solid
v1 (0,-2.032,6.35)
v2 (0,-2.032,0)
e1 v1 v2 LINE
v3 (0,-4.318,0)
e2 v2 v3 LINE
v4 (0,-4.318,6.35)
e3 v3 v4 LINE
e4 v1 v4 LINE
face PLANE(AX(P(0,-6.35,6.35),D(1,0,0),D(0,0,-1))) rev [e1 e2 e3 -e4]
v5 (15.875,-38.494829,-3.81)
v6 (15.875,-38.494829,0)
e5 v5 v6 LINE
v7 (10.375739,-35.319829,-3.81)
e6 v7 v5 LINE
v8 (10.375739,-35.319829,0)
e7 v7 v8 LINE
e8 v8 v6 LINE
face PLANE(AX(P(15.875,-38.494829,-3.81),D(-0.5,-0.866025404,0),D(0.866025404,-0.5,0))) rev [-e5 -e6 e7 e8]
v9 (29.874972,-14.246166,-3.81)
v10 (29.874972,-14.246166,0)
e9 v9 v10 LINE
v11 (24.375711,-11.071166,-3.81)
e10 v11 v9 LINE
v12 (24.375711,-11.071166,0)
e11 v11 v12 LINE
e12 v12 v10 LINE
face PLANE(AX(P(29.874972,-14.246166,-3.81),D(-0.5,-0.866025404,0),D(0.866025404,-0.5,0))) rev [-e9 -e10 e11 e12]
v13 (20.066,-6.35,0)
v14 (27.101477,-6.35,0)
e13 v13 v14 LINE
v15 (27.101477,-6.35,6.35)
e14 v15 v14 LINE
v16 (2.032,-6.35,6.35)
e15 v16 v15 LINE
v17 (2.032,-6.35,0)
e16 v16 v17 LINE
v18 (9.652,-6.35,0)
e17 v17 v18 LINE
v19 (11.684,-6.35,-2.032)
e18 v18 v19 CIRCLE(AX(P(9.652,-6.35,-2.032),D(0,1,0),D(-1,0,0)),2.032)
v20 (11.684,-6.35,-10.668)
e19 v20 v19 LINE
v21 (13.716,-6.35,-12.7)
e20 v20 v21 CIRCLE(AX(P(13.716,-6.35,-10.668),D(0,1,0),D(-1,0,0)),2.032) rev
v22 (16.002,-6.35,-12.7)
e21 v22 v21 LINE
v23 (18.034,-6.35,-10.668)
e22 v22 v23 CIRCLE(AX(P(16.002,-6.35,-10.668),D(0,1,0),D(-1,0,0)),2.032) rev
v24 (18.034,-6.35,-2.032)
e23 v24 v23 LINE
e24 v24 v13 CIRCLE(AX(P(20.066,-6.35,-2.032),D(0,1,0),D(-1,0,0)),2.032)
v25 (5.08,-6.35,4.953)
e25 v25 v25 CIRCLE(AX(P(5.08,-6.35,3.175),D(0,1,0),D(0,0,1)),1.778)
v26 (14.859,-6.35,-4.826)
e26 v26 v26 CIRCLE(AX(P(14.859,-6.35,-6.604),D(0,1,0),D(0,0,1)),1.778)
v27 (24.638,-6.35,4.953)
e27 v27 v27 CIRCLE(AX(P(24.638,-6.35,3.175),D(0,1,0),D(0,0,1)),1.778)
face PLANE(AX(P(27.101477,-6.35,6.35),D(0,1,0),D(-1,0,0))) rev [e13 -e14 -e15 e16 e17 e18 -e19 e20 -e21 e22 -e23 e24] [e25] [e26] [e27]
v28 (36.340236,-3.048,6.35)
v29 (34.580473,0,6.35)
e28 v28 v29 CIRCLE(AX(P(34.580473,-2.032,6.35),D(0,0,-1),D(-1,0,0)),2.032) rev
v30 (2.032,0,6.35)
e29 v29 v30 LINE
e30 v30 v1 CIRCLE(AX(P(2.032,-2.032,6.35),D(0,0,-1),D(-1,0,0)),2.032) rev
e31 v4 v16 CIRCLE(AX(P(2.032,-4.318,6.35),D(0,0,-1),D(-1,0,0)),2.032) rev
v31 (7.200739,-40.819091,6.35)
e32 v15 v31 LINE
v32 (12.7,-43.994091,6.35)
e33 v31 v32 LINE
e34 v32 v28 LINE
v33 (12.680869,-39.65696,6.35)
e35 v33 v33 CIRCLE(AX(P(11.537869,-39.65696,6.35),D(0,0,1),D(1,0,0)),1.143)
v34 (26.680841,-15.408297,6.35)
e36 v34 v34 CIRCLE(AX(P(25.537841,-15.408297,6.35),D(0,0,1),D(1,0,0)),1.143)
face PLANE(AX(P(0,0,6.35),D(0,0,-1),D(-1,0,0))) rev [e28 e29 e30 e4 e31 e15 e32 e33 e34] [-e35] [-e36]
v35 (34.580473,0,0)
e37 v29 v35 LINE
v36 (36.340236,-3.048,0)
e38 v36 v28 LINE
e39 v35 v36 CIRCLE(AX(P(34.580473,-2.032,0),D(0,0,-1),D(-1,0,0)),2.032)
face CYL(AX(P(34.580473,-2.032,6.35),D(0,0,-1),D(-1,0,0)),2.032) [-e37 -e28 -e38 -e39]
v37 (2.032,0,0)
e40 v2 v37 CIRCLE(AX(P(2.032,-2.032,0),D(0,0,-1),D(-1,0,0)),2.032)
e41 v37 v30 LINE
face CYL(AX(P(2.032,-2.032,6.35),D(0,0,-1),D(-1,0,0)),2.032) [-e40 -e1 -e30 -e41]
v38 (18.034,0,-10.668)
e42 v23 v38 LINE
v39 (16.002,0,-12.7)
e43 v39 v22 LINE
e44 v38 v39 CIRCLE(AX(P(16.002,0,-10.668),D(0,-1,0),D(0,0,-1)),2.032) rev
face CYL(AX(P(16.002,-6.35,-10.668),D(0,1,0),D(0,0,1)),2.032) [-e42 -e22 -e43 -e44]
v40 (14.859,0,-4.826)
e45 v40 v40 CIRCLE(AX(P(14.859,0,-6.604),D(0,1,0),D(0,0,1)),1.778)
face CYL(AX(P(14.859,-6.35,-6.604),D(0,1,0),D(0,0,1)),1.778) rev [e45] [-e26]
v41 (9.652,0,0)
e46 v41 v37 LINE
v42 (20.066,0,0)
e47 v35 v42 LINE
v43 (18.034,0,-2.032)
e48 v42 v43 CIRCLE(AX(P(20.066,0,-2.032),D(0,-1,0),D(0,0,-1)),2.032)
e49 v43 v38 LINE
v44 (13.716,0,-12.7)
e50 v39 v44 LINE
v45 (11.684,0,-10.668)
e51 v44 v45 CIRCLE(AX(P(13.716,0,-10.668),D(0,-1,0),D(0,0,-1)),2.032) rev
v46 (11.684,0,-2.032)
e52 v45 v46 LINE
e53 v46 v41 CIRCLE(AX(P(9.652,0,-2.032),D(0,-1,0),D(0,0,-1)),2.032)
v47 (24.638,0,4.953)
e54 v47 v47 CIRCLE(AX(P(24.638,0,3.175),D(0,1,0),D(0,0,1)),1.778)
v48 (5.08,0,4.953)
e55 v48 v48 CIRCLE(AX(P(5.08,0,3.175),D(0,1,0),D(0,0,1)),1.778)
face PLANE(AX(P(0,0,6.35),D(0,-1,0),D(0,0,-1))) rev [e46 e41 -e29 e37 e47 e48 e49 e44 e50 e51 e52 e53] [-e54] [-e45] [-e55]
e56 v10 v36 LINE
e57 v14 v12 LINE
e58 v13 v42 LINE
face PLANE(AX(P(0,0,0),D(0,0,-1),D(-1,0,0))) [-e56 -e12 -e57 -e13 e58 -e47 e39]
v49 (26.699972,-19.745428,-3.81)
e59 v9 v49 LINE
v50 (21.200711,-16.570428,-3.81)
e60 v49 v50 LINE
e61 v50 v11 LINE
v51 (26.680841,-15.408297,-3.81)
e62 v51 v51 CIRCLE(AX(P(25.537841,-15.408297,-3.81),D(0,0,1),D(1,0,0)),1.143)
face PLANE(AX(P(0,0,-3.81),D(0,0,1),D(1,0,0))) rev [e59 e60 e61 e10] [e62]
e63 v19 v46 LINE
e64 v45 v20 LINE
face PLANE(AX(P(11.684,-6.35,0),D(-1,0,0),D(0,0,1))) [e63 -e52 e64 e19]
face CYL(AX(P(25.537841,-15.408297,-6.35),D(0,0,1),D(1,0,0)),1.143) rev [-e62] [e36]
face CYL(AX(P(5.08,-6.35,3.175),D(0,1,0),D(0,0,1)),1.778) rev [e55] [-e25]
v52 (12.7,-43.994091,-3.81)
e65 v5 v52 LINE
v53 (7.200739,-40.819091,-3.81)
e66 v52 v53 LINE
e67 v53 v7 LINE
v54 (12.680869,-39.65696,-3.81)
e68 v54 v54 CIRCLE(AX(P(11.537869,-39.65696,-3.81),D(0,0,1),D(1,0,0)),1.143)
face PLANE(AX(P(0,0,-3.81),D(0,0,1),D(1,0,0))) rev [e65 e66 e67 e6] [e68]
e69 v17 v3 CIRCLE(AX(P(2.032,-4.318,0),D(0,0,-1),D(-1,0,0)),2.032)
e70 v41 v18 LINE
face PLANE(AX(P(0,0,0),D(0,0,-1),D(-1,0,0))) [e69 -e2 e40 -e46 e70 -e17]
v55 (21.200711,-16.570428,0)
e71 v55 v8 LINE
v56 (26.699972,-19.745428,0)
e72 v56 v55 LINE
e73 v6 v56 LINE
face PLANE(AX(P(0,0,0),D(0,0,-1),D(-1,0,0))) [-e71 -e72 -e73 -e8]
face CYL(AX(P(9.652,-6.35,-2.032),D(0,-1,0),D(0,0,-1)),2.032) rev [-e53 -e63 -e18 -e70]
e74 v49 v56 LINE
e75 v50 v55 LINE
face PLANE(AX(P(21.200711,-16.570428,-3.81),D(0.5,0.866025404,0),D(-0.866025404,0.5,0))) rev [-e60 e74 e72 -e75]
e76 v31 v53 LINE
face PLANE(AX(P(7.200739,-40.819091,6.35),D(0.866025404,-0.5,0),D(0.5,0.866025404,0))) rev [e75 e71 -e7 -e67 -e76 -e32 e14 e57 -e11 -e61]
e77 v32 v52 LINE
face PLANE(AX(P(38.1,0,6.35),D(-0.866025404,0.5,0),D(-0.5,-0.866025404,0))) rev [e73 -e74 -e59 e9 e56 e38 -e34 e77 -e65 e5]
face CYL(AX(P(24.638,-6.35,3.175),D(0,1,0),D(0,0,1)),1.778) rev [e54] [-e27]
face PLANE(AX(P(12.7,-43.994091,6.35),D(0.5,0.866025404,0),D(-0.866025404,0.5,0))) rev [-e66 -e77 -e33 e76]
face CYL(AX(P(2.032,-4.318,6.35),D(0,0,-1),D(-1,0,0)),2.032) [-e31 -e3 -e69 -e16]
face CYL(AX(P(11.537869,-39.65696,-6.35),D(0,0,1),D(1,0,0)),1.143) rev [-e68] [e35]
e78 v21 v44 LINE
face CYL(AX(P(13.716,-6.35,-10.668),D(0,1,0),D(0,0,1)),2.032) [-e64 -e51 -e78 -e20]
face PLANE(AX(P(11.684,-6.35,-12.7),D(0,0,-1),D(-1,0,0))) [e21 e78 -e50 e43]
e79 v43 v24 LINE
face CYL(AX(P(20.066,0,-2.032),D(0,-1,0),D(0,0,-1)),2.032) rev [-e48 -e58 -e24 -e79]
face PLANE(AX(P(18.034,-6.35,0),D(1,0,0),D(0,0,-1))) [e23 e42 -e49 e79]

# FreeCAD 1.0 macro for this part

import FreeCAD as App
import Part
import Sketcher

V = App.Vector
Q = App.Units.Quantity


def edges_at(feature, points):
    """Names of the edges that pass closest to the given points."""
    edges = feature.Shape.Edges
    near = lambda p: min(range(len(edges)), key=lambda i: edges[i].distToShape(Part.Vertex(*p))[0])
    return sorted({f"Edge{near(p) + 1}" for p in points})

doc = App.newDocument("Part")
body = doc.addObject("PartDesign::Body", "Body")

# Sketch on XY plane
sketch1 = body.newObject("Sketcher::SketchObject", "Sketch")
sketch1.AttachmentSupport = (doc.getObject("XY_Plane"), [""])
sketch1.MapMode = "FlatFace"
sketch1.addGeometry(Part.LineSegment(V(38, 0, 0), V(0, 0, 0)), False)
sketch1.addGeometry(Part.LineSegment(V(0, 0, 0), V(0, -6, 0)), False)
sketch1.addGeometry(Part.LineSegment(V(0, -6, 0), V(27, -6, 0)), False)
sketch1.addGeometry(Part.LineSegment(V(27, -6, 0), V(7, -41, 0)), False)
sketch1.addGeometry(Part.LineSegment(V(7, -41, 0), V(13, -44, 0)), False)
sketch1.addGeometry(Part.LineSegment(V(13, -44, 0), V(38, 0, 0)), False)
sketch1.addConstraint(Sketcher.Constraint("Coincident", 0, 2, 1, 1))
sketch1.addConstraint(Sketcher.Constraint("Coincident", 1, 2, 2, 1))
sketch1.addConstraint(Sketcher.Constraint("Coincident", 2, 2, 3, 1))
sketch1.addConstraint(Sketcher.Constraint("Coincident", 3, 2, 4, 1))
sketch1.addConstraint(Sketcher.Constraint("Coincident", 4, 2, 5, 1))
sketch1.addConstraint(Sketcher.Constraint("Coincident", 5, 2, 0, 1))
sketch1.addConstraint(Sketcher.Constraint("Horizontal", 0))
sketch1.addConstraint(Sketcher.Constraint("Vertical", 1))
sketch1.addConstraint(Sketcher.Constraint("Horizontal", 2))
sketch1.addConstraint(Sketcher.Constraint("Coincident", 0, 2, -1, 1))
sketch1.addConstraint(Sketcher.Constraint("Perpendicular", 3, 4))
sketch1.addConstraint(Sketcher.Constraint("Perpendicular", 4, 5))
sketch1.addConstraint(Sketcher.Constraint("Distance", 5, Q("2 in")))
sketch1.addConstraint(Sketcher.Constraint("DistanceX", 0, 2, 0, 1, Q("1.5 in")))
sketch1.addConstraint(Sketcher.Constraint("Angle", 3, Q("-120 deg")))
sketch1.addConstraint(Sketcher.Constraint("DistanceY", 1, 2, 1, 1, Q("0.25 in")))
sketch1.addConstraint(Sketcher.Constraint("Distance", 4, Q("0.25 in")))
pad1 = body.newObject("PartDesign::Pad", "Pad")
pad1.Profile = sketch1
pad1.Length = Q("0.25 in")

# Sketch on XZ plane
sketch2 = body.newObject("Sketcher::SketchObject", "Sketch001")
sketch2.AttachmentSupport = (doc.getObject("XZ_Plane"), [""])
sketch2.MapMode = "FlatFace"
sketch2.addGeometry(Part.Circle(V(5.1, 3.2, 0), V(0, 0, 1), 1.8), False)
sketch2.addGeometry(Part.Circle(V(24.6, 3.2, 0), V(0, 0, 1), 1.8), False)
sketch2.addConstraint(Sketcher.Constraint("Equal", 0, 1))
sketch2.addConstraint(Sketcher.Constraint("Horizontal", 0, 3, 1, 3))
sketch2.addConstraint(Sketcher.Constraint("Diameter", 0, Q("0.14 in")))
sketch2.addConstraint(Sketcher.Constraint("DistanceX", -1, 1, 0, 3, Q("0.2 in")))
sketch2.addConstraint(Sketcher.Constraint("DistanceX", -1, 1, 1, 3, Q("0.97 in")))
sketch2.addConstraint(Sketcher.Constraint("DistanceY", -1, 1, 0, 3, Q("0.125 in")))
pocket1 = body.newObject("PartDesign::Pocket", "Pocket")
pocket1.Profile = sketch2
pocket1.Length = Q("0.25 in")
pocket1.Reversed = True

# Sketch on XZ plane
sketch3 = body.newObject("Sketcher::SketchObject", "Sketch002")
sketch3.AttachmentSupport = (doc.getObject("XZ_Plane"), [""])
sketch3.MapMode = "FlatFace"
sketch3.addGeometry(Part.LineSegment(V(12, -13, 0), V(12, 0, 0)), False)
sketch3.addGeometry(Part.LineSegment(V(12, 0, 0), V(18, 0, 0)), False)
sketch3.addGeometry(Part.LineSegment(V(18, 0, 0), V(18, -13, 0)), False)
sketch3.addGeometry(Part.LineSegment(V(18, -13, 0), V(12, -13, 0)), False)
sketch3.addConstraint(Sketcher.Constraint("Coincident", 0, 2, 1, 1))
sketch3.addConstraint(Sketcher.Constraint("Coincident", 1, 2, 2, 1))
sketch3.addConstraint(Sketcher.Constraint("Coincident", 2, 2, 3, 1))
sketch3.addConstraint(Sketcher.Constraint("Coincident", 3, 2, 0, 1))
sketch3.addConstraint(Sketcher.Constraint("Vertical", 0))
sketch3.addConstraint(Sketcher.Constraint("Horizontal", 1))
sketch3.addConstraint(Sketcher.Constraint("Vertical", 2))
sketch3.addConstraint(Sketcher.Constraint("Horizontal", 3))
sketch3.addConstraint(Sketcher.Constraint("PointOnObject", 0, 2, -1))
sketch3.addConstraint(Sketcher.Constraint("DistanceY", 0, 1, 0, 2, Q("0.5 in")))
sketch3.addConstraint(Sketcher.Constraint("DistanceX", 1, 1, 1, 2, Q("0.25 in")))
sketch3.addConstraint(Sketcher.Constraint("DistanceX", -1, 1, 0, 2, Q("0.46 in")))
pad2 = body.newObject("PartDesign::Pad", "Pad001")
pad2.Profile = sketch3
pad2.Length = Q("0.25 in")

# Sketch on XZ plane
sketch4 = body.newObject("Sketcher::SketchObject", "Sketch003")
sketch4.AttachmentSupport = (doc.getObject("XZ_Plane"), [""])
sketch4.MapMode = "FlatFace"
sketch4.addGeometry(Part.Circle(V(14.9, -6.6, 0), V(0, 0, 1), 1.8), False)
sketch4.addConstraint(Sketcher.Constraint("Diameter", 0, Q("0.14 in")))
sketch4.addConstraint(Sketcher.Constraint("DistanceY", 0, 3, -1, 1, Q("0.26 in")))
sketch4.addConstraint(Sketcher.Constraint("DistanceX", -1, 1, 0, 3, Q("0.585 in")))
pocket2 = body.newObject("PartDesign::Pocket", "Pocket001")
pocket2.Profile = sketch4
pocket2.Length = Q("0.25 in")
pocket2.Reversed = True

# Sketch on XY plane
sketch5 = body.newObject("Sketcher::SketchObject", "Sketch004")
sketch5.AttachmentSupport = (doc.getObject("XY_Plane"), [""])
sketch5.MapMode = "FlatFace"
sketch5.AttachmentOffset = App.Placement(V(0, 0, 0.25 * 25.4), App.Rotation())
sketch5.addGeometry(Part.Circle(V(11.5, -39.7, 0), V(0, 0, 1), 1.1), False)
sketch5.addGeometry(Part.Circle(V(25.5, -15.4, 0), V(0, 0, 1), 1.1), False)
sketch5.addConstraint(Sketcher.Constraint("Equal", 0, 1))
sketch5.addConstraint(Sketcher.Constraint("Diameter", 0, Q("0.09 in")))
sketch5.addConstraint(Sketcher.Constraint("DistanceX", -1, 1, 0, 3, Q("11.537869 mm")))
sketch5.addConstraint(Sketcher.Constraint("DistanceY", 0, 3, -1, 1, Q("39.65696 mm")))
sketch5.addConstraint(Sketcher.Constraint("DistanceX", -1, 1, 1, 3, Q("25.537841 mm")))
sketch5.addConstraint(Sketcher.Constraint("DistanceY", 1, 3, -1, 1, Q("15.408297 mm")))
pocket3 = body.newObject("PartDesign::Pocket", "Pocket002")
pocket3.Profile = sketch5
pocket3.Length = Q("0.5 in")

# Sketch on XY plane
sketch6 = body.newObject("Sketcher::SketchObject", "Sketch005")
sketch6.AttachmentSupport = (doc.getObject("XY_Plane"), [""])
sketch6.MapMode = "FlatFace"
sketch6.addGeometry(Part.LineSegment(V(24, -11, 0), V(30, -14, 0)), False)
sketch6.addGeometry(Part.LineSegment(V(30, -14, 0), V(27, -20, 0)), False)
sketch6.addGeometry(Part.LineSegment(V(27, -20, 0), V(21, -17, 0)), False)
sketch6.addGeometry(Part.LineSegment(V(21, -17, 0), V(24, -11, 0)), False)
sketch6.addGeometry(Part.LineSegment(V(10, -35, 0), V(16, -38, 0)), False)
sketch6.addGeometry(Part.LineSegment(V(16, -38, 0), V(13, -44, 0)), False)
sketch6.addGeometry(Part.LineSegment(V(13, -44, 0), V(7, -41, 0)), False)
sketch6.addGeometry(Part.LineSegment(V(7, -41, 0), V(10, -35, 0)), False)
sketch6.addConstraint(Sketcher.Constraint("Coincident", 0, 2, 1, 1))
sketch6.addConstraint(Sketcher.Constraint("Coincident", 1, 2, 2, 1))
sketch6.addConstraint(Sketcher.Constraint("Coincident", 2, 2, 3, 1))
sketch6.addConstraint(Sketcher.Constraint("Coincident", 3, 2, 0, 1))
sketch6.addConstraint(Sketcher.Constraint("Coincident", 4, 2, 5, 1))
sketch6.addConstraint(Sketcher.Constraint("Coincident", 5, 2, 6, 1))
sketch6.addConstraint(Sketcher.Constraint("Coincident", 6, 2, 7, 1))
sketch6.addConstraint(Sketcher.Constraint("Coincident", 7, 2, 4, 1))
sketch6.addConstraint(Sketcher.Constraint("Perpendicular", 0, 1))
sketch6.addConstraint(Sketcher.Constraint("Perpendicular", 1, 2))
sketch6.addConstraint(Sketcher.Constraint("Perpendicular", 2, 3))
sketch6.addConstraint(Sketcher.Constraint("Perpendicular", 3, 4))
sketch6.addConstraint(Sketcher.Constraint("Perpendicular", 4, 5))
sketch6.addConstraint(Sketcher.Constraint("Perpendicular", 5, 6))
sketch6.addConstraint(Sketcher.Constraint("Perpendicular", 6, 7))
sketch6.addConstraint(Sketcher.Constraint("Equal", 0, 1))
sketch6.addConstraint(Sketcher.Constraint("Equal", 3, 4))
sketch6.addConstraint(Sketcher.Constraint("Equal", 4, 5))
sketch6.addConstraint(Sketcher.Constraint("Angle", 0, Q("-30 deg")))
sketch6.addConstraint(Sketcher.Constraint("DistanceX", -1, 1, 5, 2, Q("0.5 in")))
sketch6.addConstraint(Sketcher.Constraint("Distance", 0, Q("0.25 in")))
sketch6.addConstraint(Sketcher.Constraint("DistanceY", 4, 2, 1, 2, Q("18.749401 mm")))
sketch6.addConstraint(Sketcher.Constraint("DistanceX", -1, 1, 0, 2, Q("29.874972 mm")))
sketch6.addConstraint(Sketcher.Constraint("DistanceY", 4, 2, -1, 1, Q("38.494829 mm")))
pad3 = body.newObject("PartDesign::Pad", "Pad002")
pad3.Profile = sketch6
pad3.Length = Q("0.15 in")
pad3.Reversed = True
doc.recompute()

fillet = body.newObject("PartDesign::Fillet", "Fillet")
fillet.Base = (pad3, edges_at(pad3, [
    (0, 0, 3.175),
    (38.1, 0, 3.175),
    (0, -6.35, 3.175),
    (11.684, -3.175, 0),
    (11.684, -3.175, -12.7),
    (18.034, -3.175, -12.7),
    (18.034, -3.175, 0),
]))
fillet.Radius = Q("0.08 in")

# Sketch on XY plane
sketch7 = body.newObject("Sketcher::SketchObject", "Sketch006")
sketch7.AttachmentSupport = (doc.getObject("XY_Plane"), [""])
sketch7.MapMode = "FlatFace"
sketch7.AttachmentOffset = App.Placement(V(0, 0, 0.25 * 25.4), App.Rotation())
sketch7.addGeometry(Part.Circle(V(25.5, -15.4, 0), V(0, 0, 1), 1.1), False)
sketch7.addGeometry(Part.Circle(V(11.5, -39.7, 0), V(0, 0, 1), 1.1), False)
sketch7.addConstraint(Sketcher.Constraint("Equal", 0, 1))
sketch7.addConstraint(Sketcher.Constraint("Diameter", 0, Q("0.09 in")))
sketch7.addConstraint(Sketcher.Constraint("DistanceX", -1, 1, 0, 3, Q("25.537841 mm")))
sketch7.addConstraint(Sketcher.Constraint("DistanceX", -1, 1, 1, 3, Q("11.537869 mm")))
sketch7.addConstraint(Sketcher.Constraint("DistanceY", 1, 3, -1, 1, Q("39.65696 mm")))
sketch7.addConstraint(Sketcher.Constraint("DistanceY", 0, 3, -1, 1, Q("15.408297 mm")))
pocket4 = body.newObject("PartDesign::Pocket", "Pocket003")
pocket4.Profile = sketch7
pocket4.Length = Q("0.5 in")

doc.recompute()
